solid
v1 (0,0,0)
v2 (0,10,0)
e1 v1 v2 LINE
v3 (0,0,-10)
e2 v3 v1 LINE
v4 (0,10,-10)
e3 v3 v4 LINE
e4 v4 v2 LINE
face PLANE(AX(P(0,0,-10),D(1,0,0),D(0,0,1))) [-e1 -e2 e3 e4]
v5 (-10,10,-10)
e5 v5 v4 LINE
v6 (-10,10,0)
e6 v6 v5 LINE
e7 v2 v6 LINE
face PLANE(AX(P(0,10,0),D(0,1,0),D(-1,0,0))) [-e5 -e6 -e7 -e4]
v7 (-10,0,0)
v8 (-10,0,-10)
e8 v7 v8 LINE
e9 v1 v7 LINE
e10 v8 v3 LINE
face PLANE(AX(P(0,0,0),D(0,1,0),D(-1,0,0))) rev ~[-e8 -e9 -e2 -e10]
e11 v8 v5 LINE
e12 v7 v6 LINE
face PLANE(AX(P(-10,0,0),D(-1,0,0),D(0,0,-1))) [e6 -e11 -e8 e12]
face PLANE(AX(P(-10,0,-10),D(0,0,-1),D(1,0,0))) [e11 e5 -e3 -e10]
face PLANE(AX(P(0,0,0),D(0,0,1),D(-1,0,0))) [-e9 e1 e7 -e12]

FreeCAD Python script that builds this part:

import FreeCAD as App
import Part
import Sketcher
Q = App.Units.Quantity


def add_polygon(sketch, points):
    """Adds a closed chain of lines whose ends are joined by coincident constraints."""
    first, n = sketch.GeometryCount, len(points)
    for a, b in zip(points, points[1:] + points[:1]):
        sketch.addGeometry(Part.LineSegment(App.Vector(*a, 0), App.Vector(*b, 0)), False)
    for i in range(n):
        sketch.addConstraint(Sketcher.Constraint("Coincident", first + i, 2, first + (i + 1) % n, 1))

doc = App.newDocument("Part")
body = doc.addObject("PartDesign::Body", "Body")

# Sketch on XZ plane
sketch1 = body.newObject("Sketcher::SketchObject", "Sketch")
sketch1.AttachmentSupport = (doc.getObject("XZ_Plane"), [""])
sketch1.MapMode = "FlatFace"
add_polygon(sketch1, [(-10, 0), (0, 0), (0, -10), (-10, -10)])  # lines 0-3
sketch1.addConstraint([
    Sketcher.Constraint("Horizontal", 0),
    Sketcher.Constraint("Vertical", 1),
    Sketcher.Constraint("Horizontal", 2),
    Sketcher.Constraint("Vertical", 3),
    Sketcher.Constraint("Coincident", 0, 2, -1, 1),
    Sketcher.Constraint("Equal", 2, 1),
    Sketcher.Constraint("DistanceX", 0, 1, 0, 2, Q("10 mm")),
])
pad1 = body.newObject("PartDesign::Pad", "Pad")
pad1.Profile = sketch1
pad1.Length = 10
pad1.Reversed = True

doc.recompute()
